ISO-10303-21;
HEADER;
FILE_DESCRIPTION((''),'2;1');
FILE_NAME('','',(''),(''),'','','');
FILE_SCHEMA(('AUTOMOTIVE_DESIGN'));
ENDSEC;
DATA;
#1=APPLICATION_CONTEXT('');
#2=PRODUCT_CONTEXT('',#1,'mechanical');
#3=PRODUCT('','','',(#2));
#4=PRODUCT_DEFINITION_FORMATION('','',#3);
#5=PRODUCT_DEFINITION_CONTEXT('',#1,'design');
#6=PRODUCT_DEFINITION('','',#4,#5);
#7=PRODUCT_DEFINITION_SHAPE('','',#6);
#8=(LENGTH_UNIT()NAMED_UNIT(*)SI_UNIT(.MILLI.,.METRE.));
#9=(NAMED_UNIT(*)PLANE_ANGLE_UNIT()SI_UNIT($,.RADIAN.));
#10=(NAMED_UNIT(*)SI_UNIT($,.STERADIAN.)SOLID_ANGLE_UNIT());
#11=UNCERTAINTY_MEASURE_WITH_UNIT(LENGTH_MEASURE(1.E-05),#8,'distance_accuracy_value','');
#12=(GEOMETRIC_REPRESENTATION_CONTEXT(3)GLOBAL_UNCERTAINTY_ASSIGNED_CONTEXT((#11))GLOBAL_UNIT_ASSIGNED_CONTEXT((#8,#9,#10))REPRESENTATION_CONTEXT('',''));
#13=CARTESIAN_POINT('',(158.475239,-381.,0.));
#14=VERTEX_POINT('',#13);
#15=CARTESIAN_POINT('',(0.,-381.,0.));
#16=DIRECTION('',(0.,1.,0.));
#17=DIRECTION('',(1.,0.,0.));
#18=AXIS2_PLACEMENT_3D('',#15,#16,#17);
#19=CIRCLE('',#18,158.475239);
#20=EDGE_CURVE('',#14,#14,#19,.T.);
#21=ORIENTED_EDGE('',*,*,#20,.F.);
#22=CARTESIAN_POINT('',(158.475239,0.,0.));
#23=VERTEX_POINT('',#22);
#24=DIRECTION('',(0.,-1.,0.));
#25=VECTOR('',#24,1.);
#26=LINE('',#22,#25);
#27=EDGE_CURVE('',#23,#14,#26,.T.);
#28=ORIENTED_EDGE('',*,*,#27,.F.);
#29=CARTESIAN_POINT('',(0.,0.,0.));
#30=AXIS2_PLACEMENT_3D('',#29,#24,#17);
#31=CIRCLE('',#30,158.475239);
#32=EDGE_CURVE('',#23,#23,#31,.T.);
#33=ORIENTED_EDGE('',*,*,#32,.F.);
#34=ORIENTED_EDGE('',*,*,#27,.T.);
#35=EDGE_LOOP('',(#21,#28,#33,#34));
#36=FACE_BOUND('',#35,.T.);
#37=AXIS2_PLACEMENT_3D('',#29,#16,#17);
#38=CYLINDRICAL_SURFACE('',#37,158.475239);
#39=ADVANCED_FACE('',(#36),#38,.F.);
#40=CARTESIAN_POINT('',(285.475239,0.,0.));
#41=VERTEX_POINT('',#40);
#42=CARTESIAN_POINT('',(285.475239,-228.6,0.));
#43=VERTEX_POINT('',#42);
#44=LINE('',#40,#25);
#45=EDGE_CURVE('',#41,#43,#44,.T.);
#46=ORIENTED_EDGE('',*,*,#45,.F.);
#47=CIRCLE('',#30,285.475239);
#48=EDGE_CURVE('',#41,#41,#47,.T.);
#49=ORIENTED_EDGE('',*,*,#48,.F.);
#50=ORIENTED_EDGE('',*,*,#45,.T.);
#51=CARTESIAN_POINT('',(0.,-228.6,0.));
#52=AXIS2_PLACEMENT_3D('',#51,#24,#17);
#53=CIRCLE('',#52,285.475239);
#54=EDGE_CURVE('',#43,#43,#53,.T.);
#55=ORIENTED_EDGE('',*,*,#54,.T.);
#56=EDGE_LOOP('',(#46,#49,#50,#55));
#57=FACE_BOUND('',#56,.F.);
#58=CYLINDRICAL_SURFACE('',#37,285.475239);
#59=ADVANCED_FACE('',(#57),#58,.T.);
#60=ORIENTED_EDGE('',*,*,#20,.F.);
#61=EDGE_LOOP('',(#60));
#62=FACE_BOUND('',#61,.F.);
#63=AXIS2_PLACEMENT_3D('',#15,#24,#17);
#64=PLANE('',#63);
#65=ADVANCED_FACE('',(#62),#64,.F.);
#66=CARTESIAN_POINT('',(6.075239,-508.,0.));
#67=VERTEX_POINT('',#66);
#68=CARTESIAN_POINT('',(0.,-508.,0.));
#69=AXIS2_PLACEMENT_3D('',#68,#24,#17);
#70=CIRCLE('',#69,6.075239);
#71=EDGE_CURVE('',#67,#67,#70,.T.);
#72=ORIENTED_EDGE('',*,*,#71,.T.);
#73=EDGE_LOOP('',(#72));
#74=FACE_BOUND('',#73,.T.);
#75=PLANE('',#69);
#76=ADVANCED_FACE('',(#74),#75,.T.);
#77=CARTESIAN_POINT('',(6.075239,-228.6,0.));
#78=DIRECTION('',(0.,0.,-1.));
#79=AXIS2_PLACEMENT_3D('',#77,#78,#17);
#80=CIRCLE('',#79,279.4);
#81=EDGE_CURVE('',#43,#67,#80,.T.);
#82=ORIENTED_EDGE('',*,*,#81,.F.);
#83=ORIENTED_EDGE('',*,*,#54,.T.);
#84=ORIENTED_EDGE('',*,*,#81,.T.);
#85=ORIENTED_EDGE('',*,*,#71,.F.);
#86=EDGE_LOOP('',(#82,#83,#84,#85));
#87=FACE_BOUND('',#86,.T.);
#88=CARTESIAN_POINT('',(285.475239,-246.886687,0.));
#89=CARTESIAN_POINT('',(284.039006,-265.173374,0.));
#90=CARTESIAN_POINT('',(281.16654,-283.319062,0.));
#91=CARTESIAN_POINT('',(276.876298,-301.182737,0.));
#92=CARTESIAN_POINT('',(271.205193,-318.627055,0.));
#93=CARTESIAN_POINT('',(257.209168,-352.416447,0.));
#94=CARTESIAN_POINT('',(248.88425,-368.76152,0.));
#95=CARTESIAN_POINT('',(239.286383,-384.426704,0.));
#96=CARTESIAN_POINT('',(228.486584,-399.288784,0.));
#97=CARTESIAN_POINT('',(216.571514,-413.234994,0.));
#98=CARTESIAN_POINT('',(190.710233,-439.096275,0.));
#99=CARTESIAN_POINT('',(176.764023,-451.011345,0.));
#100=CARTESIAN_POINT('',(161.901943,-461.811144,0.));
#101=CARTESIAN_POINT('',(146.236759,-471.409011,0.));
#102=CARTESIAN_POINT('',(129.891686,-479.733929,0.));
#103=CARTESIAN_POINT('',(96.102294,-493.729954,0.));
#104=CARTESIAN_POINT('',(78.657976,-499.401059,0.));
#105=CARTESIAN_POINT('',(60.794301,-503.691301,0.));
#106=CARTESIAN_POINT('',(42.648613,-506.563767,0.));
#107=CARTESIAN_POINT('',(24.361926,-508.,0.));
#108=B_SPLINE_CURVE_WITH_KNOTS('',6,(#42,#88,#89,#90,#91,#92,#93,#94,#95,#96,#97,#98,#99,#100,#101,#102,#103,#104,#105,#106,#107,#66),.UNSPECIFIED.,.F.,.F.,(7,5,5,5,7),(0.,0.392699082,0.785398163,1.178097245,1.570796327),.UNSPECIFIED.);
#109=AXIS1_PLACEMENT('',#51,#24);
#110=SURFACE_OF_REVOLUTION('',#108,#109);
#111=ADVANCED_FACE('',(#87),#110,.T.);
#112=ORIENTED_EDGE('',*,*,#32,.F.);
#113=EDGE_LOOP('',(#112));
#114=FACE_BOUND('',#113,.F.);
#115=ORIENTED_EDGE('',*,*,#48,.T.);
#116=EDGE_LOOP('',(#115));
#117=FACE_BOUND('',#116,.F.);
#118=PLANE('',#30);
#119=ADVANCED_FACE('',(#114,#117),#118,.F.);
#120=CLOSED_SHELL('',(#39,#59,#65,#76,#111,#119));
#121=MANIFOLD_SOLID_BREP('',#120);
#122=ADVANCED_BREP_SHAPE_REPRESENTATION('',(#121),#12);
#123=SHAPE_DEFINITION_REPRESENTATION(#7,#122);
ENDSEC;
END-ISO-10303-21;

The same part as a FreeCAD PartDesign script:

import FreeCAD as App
import Part
import Sketcher

V = App.Vector
Q = App.Units.Quantity


def edges_at(feature, points):
    """Names of the edges that pass closest to the given points."""
    edges = feature.Shape.Edges
    near = lambda p: min(range(len(edges)), key=lambda i: edges[i].distToShape(Part.Vertex(*p))[0])
    return sorted({f"Edge{near(p) + 1}" for p in points})


def faces_at(feature, points):
    """Names of the faces that lie closest to the given points."""
    faces = feature.Shape.Faces
    near = lambda p: min(range(len(faces)), key=lambda i: faces[i].distToShape(Part.Vertex(*p))[0])
    return sorted({f"Face{near(p) + 1}" for p in points})

doc = App.newDocument("Part")
body = doc.addObject("PartDesign::Body", "Body")

# Sketch on XZ plane
sketch1 = doc.addObject("Sketcher::SketchObject", "Sketch")
body.addObject(sketch1)
sketch1.AttachmentSupport = (doc.XZ_Plane, [""])
sketch1.MapMode = "FlatFace"
sketch1.addGeometry(Part.Circle(V(0, 0, 0), V(0, 0, 1), 285), False)
sketch1.addConstraint(Sketcher.Constraint("Coincident", 0, 3, -1, 1))
sketch1.addConstraint(Sketcher.Constraint("Diameter", 0, Q("570.950478 mm")))
pad1 = doc.addObject("PartDesign::Pad", "Pad")
body.addObject(pad1)
pad1.Profile = sketch1
pad1.Length = Q("20 in")
doc.recompute()

thickness = doc.addObject("PartDesign::Thickness", "Thickness")
body.addObject(thickness)
thickness.Base = (pad1, faces_at(pad1, [(0, 0, 0)]))
thickness.Value = Q("5 in")
thickness.Reversed = True
thickness.Join = "Arc"
doc.recompute()

fillet = doc.addObject("PartDesign::Fillet", "Fillet")
body.addObject(fillet)
fillet.Base = (thickness, edges_at(thickness, [(-285.475, -508, 0)]))
fillet.Radius = Q("11 in")

doc.recompute()
